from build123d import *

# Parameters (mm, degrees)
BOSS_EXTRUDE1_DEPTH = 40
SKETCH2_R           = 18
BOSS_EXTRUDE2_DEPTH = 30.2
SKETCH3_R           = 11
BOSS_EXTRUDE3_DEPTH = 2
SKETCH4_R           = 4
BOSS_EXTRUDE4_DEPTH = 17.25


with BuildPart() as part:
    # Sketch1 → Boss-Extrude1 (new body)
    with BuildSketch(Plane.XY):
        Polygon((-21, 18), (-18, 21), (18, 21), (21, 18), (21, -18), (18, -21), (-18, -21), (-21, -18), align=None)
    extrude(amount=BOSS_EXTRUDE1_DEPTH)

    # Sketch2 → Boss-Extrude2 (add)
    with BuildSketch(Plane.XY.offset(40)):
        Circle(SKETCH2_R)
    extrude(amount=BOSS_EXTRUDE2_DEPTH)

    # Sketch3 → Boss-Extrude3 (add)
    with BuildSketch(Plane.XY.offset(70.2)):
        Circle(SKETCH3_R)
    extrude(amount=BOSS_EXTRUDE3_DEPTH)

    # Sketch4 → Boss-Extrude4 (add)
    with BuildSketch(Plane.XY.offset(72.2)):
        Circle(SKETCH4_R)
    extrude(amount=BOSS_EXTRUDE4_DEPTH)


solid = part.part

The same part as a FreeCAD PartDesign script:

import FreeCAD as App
import Part
import Sketcher
from FreeCAD import Vector


def add_polygon(sketch, points):
    """Adds a closed chain of lines whose ends are joined by coincident constraints."""
    first, n = sketch.GeometryCount, len(points)
    for a, b in zip(points, points[1:] + points[:1]):
        sketch.addGeometry(Part.LineSegment(App.Vector(*a, 0), App.Vector(*b, 0)), False)
    for i in range(n):
        sketch.addConstraint(Sketcher.Constraint("Coincident", first + i, 2, first + (i + 1) % n, 1))

doc = App.newDocument("Part")
params = doc.addObject("Spreadsheet::Sheet", "Params")
for row, (alias, value) in enumerate([
    ("sketch1_width", "36 mm"),
    ("pad1_length", "40 mm"),
    ("sketch2_diameter", "36 mm"),
    ("pad2_length", "30.2 mm"),
    ("sketch3_diameter", "22 mm"),
    ("pad3_length", "2 mm"),
    ("sketch4_diameter", "8 mm"),
    ("pad4_length", "17.25 mm"),
], start=1):
    params.set(f"A{row}", alias)
    params.set(f"B{row}", "=" + value)
    params.setAlias(f"B{row}", alias)

body = doc.addObject("PartDesign::Body", "Body")

sketch1 = body.newObject("Sketcher::SketchObject", "Sketch")
sketch1.AttachmentSupport = (doc.getObject("XY_Plane"), [""])
sketch1.MapMode = "FlatFace"
add_polygon(sketch1, [(-18, 21), (-21, 18), (-21, -18), (-18, -21), (18, -21), (21, -18), (21, 18), (18, 21)])
sketch1.addConstraint(Sketcher.Constraint("Vertical", 1))
sketch1.addConstraint(Sketcher.Constraint("Horizontal", 3))
sketch1.addConstraint(Sketcher.Constraint("Vertical", 5))
sketch1.addConstraint(Sketcher.Constraint("Horizontal", 7))
sketch1.addConstraint(Sketcher.Constraint("Symmetric", 0, 2, 4, 2, -1, 1))
sketch1.addConstraint(Sketcher.Constraint("Symmetric", 2, 2, 6, 2, -1, 1))
sketch1.addConstraint(Sketcher.Constraint("Perpendicular", 0, 2))
sketch1.addConstraint(Sketcher.Constraint("Perpendicular", 2, 4))
sketch1.addConstraint(Sketcher.Constraint("Perpendicular", 4, 6))
sketch1.addConstraint(Sketcher.Constraint("Horizontal", 1, 2, 4, 2))
sketch1.addConstraint(Sketcher.Constraint("Vertical", 3, 2, 6, 2))
sketch1.addConstraint(Sketcher.Constraint("Equal", 7, 1))
sketch1.addConstraint(Sketcher.Constraint("DistanceX", 3, 1, 3, 2, 36.0))
sketch1.addConstraint(Sketcher.Constraint("DistanceX", 0, 2, -1, 1, 21.0))
sketch1.setExpression("Constraints[20]", "Params.sketch1_width")
pad1 = body.newObject("PartDesign::Pad", "Pad")
pad1.Profile = sketch1
pad1.setExpression("Length", "Params.pad1_length")

sketch2 = body.newObject("Sketcher::SketchObject", "Sketch001")
sketch2.AttachmentSupport = (doc.getObject("XY_Plane"), [""])
sketch2.MapMode = "FlatFace"
sketch2.AttachmentOffset = App.Placement(Vector(0, 0, 40), App.Rotation())
sketch2.addGeometry(Part.Circle(Vector(0, 0, 0), Vector(0, 0, 1), 18), False)
sketch2.addConstraint(Sketcher.Constraint("Coincident", 0, 3, -1, 1))
sketch2.addConstraint(Sketcher.Constraint("Diameter", 0, 36.0))
sketch2.setExpression("Constraints[1]", "Params.sketch2_diameter")
pad2 = body.newObject("PartDesign::Pad", "Pad001")
pad2.Profile = sketch2
pad2.setExpression("Length", "Params.pad2_length")

sketch3 = body.newObject("Sketcher::SketchObject", "Sketch002")
sketch3.AttachmentSupport = (doc.getObject("XY_Plane"), [""])
sketch3.MapMode = "FlatFace"
sketch3.AttachmentOffset = App.Placement(Vector(0, 0, 70.2), App.Rotation())
sketch3.addGeometry(Part.Circle(Vector(0, 0, 0), Vector(0, 0, 1), 11), False)
sketch3.addConstraint(Sketcher.Constraint("Coincident", 0, 3, -1, 1))
sketch3.addConstraint(Sketcher.Constraint("Diameter", 0, 22.0))
sketch3.setExpression("Constraints[1]", "Params.sketch3_diameter")
pad3 = body.newObject("PartDesign::Pad", "Pad002")
pad3.Profile = sketch3
pad3.setExpression("Length", "Params.pad3_length")

sketch4 = body.newObject("Sketcher::SketchObject", "Sketch003")
sketch4.AttachmentSupport = (doc.getObject("XY_Plane"), [""])
sketch4.MapMode = "FlatFace"
sketch4.AttachmentOffset = App.Placement(Vector(0, 0, 72.2), App.Rotation())
sketch4.addGeometry(Part.Circle(Vector(0, 0, 0), Vector(0, 0, 1), 4), False)
sketch4.addConstraint(Sketcher.Constraint("Coincident", 0, 3, -1, 1))
sketch4.addConstraint(Sketcher.Constraint("Diameter", 0, 8.0))
sketch4.setExpression("Constraints[1]", "Params.sketch4_diameter")
pad4 = body.newObject("PartDesign::Pad", "Pad003")
pad4.Profile = sketch4
pad4.setExpression("Length", "Params.pad4_length")

doc.recompute()
